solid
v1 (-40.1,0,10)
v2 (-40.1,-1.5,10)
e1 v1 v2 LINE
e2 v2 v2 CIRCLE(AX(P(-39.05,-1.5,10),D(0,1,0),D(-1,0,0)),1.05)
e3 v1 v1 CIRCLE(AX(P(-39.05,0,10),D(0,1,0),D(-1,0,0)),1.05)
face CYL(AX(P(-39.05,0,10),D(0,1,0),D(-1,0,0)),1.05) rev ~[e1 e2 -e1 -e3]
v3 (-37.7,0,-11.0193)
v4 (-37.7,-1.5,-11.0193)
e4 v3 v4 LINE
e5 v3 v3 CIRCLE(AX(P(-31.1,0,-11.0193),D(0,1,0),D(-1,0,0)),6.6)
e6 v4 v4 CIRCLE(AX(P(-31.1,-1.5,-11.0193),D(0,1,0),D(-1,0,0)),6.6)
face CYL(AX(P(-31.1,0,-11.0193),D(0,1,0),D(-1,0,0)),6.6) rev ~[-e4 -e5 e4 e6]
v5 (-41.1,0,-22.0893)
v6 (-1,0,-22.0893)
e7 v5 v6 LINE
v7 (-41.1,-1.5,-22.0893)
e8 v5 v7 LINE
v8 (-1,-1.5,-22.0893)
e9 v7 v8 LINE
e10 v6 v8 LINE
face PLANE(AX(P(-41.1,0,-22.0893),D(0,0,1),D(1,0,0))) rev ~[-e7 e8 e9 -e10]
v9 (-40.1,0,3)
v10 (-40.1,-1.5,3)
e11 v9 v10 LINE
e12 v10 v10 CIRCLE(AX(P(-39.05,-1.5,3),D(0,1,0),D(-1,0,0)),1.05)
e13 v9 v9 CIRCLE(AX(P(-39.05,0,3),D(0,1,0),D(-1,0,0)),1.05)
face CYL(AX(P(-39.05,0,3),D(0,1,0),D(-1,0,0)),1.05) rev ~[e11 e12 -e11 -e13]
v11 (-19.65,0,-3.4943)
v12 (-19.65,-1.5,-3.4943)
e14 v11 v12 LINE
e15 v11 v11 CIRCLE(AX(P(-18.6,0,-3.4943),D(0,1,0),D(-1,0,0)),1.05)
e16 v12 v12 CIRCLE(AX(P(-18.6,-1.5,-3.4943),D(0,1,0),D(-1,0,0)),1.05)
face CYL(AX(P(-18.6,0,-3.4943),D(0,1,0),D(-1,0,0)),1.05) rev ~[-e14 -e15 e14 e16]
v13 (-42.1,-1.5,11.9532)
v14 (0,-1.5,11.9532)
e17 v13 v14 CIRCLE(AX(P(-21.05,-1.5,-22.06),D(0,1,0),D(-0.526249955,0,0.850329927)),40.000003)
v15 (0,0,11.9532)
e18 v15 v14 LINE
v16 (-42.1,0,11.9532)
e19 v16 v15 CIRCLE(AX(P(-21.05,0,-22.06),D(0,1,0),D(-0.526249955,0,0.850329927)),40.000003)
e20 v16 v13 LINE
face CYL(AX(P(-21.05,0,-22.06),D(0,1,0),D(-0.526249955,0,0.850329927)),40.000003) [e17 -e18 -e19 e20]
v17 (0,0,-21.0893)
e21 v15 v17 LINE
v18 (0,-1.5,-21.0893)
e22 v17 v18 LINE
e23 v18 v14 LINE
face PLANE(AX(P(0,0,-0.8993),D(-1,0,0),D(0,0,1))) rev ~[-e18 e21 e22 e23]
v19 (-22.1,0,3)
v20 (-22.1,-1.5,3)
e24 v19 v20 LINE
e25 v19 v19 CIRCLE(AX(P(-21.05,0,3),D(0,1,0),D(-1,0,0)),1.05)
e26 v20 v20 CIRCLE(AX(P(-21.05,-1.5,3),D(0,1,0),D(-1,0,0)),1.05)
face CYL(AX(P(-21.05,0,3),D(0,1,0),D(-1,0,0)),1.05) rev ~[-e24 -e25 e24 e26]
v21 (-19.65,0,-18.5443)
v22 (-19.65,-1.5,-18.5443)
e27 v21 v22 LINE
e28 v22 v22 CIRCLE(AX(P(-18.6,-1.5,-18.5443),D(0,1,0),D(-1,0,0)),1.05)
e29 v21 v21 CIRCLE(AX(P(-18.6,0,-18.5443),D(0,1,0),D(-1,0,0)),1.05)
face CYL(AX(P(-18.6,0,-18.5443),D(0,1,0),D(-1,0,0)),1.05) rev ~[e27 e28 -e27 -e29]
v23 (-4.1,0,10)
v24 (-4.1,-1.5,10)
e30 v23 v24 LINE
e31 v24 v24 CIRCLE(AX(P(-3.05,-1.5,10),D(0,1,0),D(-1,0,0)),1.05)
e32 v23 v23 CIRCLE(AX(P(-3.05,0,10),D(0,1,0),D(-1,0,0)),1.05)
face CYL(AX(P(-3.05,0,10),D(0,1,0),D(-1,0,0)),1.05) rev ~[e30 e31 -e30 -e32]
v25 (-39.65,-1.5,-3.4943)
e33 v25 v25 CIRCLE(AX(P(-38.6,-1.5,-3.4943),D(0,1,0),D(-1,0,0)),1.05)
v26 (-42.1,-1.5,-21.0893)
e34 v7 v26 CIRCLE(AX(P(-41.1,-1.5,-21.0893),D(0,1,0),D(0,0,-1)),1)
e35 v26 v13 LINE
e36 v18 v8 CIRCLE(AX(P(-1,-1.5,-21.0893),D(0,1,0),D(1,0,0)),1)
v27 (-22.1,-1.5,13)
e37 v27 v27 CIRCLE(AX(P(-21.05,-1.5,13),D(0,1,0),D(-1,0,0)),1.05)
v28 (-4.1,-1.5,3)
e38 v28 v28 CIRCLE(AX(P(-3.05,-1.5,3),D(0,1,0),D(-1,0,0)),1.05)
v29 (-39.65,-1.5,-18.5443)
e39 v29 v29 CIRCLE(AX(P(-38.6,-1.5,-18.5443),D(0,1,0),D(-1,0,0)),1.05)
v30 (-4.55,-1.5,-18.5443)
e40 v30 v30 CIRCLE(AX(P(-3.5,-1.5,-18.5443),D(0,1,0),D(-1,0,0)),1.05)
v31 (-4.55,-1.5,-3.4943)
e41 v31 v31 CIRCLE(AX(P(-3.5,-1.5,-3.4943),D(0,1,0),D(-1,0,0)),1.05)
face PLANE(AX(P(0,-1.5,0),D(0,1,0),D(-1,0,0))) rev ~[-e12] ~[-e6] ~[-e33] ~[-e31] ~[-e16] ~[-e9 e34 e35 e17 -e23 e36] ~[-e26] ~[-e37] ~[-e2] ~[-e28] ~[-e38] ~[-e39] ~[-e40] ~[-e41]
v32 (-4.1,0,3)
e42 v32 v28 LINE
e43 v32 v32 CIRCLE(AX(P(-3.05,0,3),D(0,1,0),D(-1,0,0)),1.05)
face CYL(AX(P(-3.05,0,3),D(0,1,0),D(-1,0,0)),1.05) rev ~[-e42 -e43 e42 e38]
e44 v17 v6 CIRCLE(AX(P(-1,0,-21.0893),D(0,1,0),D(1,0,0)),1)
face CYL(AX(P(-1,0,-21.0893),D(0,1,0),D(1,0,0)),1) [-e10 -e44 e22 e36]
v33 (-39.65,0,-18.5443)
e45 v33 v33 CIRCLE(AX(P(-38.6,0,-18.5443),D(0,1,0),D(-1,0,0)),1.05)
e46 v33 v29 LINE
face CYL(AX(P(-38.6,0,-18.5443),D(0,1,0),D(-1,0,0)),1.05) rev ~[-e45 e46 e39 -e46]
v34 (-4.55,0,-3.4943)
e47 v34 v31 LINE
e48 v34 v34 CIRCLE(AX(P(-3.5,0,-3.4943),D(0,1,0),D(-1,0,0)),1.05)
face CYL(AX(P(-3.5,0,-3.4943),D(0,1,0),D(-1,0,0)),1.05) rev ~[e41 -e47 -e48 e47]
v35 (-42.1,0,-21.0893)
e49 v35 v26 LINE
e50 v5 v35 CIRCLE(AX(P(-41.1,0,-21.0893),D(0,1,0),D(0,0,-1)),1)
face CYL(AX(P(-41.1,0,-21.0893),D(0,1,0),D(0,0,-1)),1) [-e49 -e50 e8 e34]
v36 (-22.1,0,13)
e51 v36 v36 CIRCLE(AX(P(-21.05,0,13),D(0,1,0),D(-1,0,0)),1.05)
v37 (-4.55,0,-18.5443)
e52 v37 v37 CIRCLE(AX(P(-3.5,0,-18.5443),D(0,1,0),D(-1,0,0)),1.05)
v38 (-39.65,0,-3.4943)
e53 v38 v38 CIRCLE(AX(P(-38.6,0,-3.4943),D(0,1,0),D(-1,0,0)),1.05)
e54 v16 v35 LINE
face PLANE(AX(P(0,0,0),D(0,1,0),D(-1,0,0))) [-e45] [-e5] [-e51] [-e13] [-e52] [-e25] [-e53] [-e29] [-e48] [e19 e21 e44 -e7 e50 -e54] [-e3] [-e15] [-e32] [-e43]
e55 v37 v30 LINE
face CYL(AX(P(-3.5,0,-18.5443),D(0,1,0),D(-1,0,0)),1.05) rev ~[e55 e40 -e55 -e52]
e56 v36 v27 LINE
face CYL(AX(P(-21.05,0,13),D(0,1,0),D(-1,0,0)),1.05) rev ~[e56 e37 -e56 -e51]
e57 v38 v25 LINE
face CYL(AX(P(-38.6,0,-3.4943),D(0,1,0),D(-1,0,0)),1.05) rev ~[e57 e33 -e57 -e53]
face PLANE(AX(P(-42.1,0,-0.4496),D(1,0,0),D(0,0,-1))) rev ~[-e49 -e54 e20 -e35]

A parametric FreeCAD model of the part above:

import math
import FreeCAD as App
import Part
import Sketcher

V = App.Vector

doc = App.newDocument("Part")
body = doc.addObject("PartDesign::Body", "Body")

sketch1 = body.newObject("Sketcher::SketchObject", "Sketch")
sketch1.AttachmentSupport = (doc.getObject("XZ_Plane"), [""])
sketch1.MapMode = "FlatFace"
sketch1.addGeometry([
    Part.ArcOfCircle(Part.Circle(V(-21.05, -22.06, 0), V(0, 0, 1), 40.000003), math.radians(58.247572), math.radians(121.752428)),
    Part.LineSegment(V(0, 11.9532, 0), V(0, -21.0893, 0)),
    Part.ArcOfCircle(Part.Circle(V(-1, -21.0893, 0), V(0, 0, 1), 1), math.radians(-90), math.radians(0)),
    Part.LineSegment(V(-1, -22.0893, 0), V(-41.1, -22.0893, 0)),
    Part.ArcOfCircle(Part.Circle(V(-41.1, -21.0893, 0), V(0, 0, 1), 1), math.radians(180), math.radians(270)),
    Part.LineSegment(V(-42.1, -21.0893, 0), V(-42.1, 11.9532, 0)),
    Part.Circle(V(-38.6, -3.4943, 0), V(0, 0, 1), 1.05),
    Part.Circle(V(-3.5, -18.5443, 0), V(0, 0, 1), 1.05),
    Part.Circle(V(-18.6, -18.5443, 0), V(0, 0, 1), 1.05),
    Part.Circle(V(-3.5, -3.4943, 0), V(0, 0, 1), 1.05),
    Part.Circle(V(-18.6, -3.4943, 0), V(0, 0, 1), 1.05),
    Part.Circle(V(-38.6, -18.5443, 0), V(0, 0, 1), 1.05),
    Part.Circle(V(-31.1, -11.0193, 0), V(0, 0, 1), 6.6),
    Part.Circle(V(-39.05, 10, 0), V(0, 0, 1), 1.05),
    Part.Circle(V(-3.05, 3, 0), V(0, 0, 1), 1.05),
    Part.Circle(V(-3.05, 10, 0), V(0, 0, 1), 1.05),
    Part.Circle(V(-21.05, 3, 0), V(0, 0, 1), 1.05),
    Part.Circle(V(-39.05, 3, 0), V(0, 0, 1), 1.05),
    Part.Circle(V(-21.05, 13, 0), V(0, 0, 1), 1.05),
], False)
sketch1.addConstraint([
    Sketcher.Constraint("Coincident", 0, 1, 1, 1),
    Sketcher.Constraint("Tangent", 1, 2, 2, 2),
    Sketcher.Constraint("Tangent", 2, 1, 3, 1),
    Sketcher.Constraint("Tangent", 3, 2, 4, 2),
    Sketcher.Constraint("Tangent", 4, 1, 5, 1),
    Sketcher.Constraint("Coincident", 5, 2, 0, 2),
    Sketcher.Constraint("Vertical", 1),
    Sketcher.Constraint("Horizontal", 3),
    Sketcher.Constraint("Vertical", 5),
    Sketcher.Constraint("Equal", 2, 4),
    Sketcher.Constraint("Equal", 6, 7),
    Sketcher.Constraint("Equal", 7, 8),
    Sketcher.Constraint("Equal", 8, 9),
    Sketcher.Constraint("Equal", 9, 10),
    Sketcher.Constraint("Equal", 10, 11),
    Sketcher.Constraint("Equal", 11, 13),
    Sketcher.Constraint("Equal", 13, 14),
    Sketcher.Constraint("Equal", 14, 15),
    Sketcher.Constraint("Equal", 15, 16),
    Sketcher.Constraint("Equal", 16, 17),
    Sketcher.Constraint("Equal", 17, 18),
    Sketcher.Constraint("PointOnObject", 0, 1, -2),
    Sketcher.Constraint("Horizontal", 7, 3, 8, 3),
    Sketcher.Constraint("Horizontal", 6, 3, 9, 3),
    Sketcher.Constraint("Horizontal", 9, 3, 10, 3),
    Sketcher.Constraint("Horizontal", 8, 3, 11, 3),
    Sketcher.Constraint("Horizontal", 13, 3, 15, 3),
    Sketcher.Constraint("Horizontal", 14, 3, 16, 3),
    Sketcher.Constraint("Horizontal", 16, 3, 17, 3),
    Sketcher.Constraint("Horizontal", 0, 1, 5, 2),
    Sketcher.Constraint("Vertical", 7, 3, 9, 3),
    Sketcher.Constraint("Vertical", 8, 3, 10, 3),
    Sketcher.Constraint("Vertical", 6, 3, 11, 3),
    Sketcher.Constraint("Vertical", 14, 3, 15, 3),
    Sketcher.Constraint("Vertical", 0, 3, 16, 3),
    Sketcher.Constraint("Vertical", 13, 3, 17, 3),
    Sketcher.Constraint("Vertical", 16, 3, 18, 3),
    Sketcher.Constraint("Radius", 0, 40.0),
    Sketcher.Constraint("Radius", 2, 1.0),
    Sketcher.Constraint("Diameter", 6, 2.1),
    Sketcher.Constraint("Diameter", 12, 13.2),
    Sketcher.Constraint("DistanceX", 3, 2, 3, 1, 40.1),
    Sketcher.Constraint("DistanceY", -1, 1, 13, 3, 10.0),
    Sketcher.Constraint("DistanceY", -1, 1, 14, 3, 3.0),
    Sketcher.Constraint("DistanceY", -1, 1, 18, 3, 13.0),
    Sketcher.Constraint("DistanceX", 6, 3, 8, 3, 20.0),
    Sketcher.Constraint("DistanceX", 4, 3, 12, 3, 10.0),
    Sketcher.Constraint("DistanceX", 16, 3, 14, 3, 18.0),
    Sketcher.Constraint("DistanceX", 17, 3, 16, 3, 18.0),
    Sketcher.Constraint("DistanceX", 6, 3, -1, 1, 38.6),
    Sketcher.Constraint("DistanceX", 7, 3, -1, 1, 3.5),
    Sketcher.Constraint("DistanceY", 0, 3, -1, 1, 22.06),
    Sketcher.Constraint("DistanceY", 7, 3, 6, 3, 15.05),
    Sketcher.Constraint("DistanceY", 4, 3, 12, 3, 10.07),
    Sketcher.Constraint("DistanceY", 1, 2, 1, 1, 33.0425),
    Sketcher.Constraint("DistanceY", 4, 3, 6, 3, 17.595),
])
pad1 = body.newObject("PartDesign::Pad", "Pad")
pad1.Profile = sketch1
pad1.Length = 1.5

doc.recompute()
